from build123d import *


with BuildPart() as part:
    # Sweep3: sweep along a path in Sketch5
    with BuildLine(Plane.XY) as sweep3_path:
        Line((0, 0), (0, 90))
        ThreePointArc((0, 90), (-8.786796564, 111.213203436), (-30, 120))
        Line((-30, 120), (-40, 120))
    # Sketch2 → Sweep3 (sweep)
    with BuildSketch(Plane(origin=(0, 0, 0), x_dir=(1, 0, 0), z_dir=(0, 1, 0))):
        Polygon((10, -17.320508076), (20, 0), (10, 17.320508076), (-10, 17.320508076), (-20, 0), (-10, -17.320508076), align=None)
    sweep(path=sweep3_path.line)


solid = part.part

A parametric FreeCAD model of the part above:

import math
import FreeCAD as App
import Part
import Sketcher
Q = App.Units.Quantity


def add_polygon(sketch, points):
    """Adds a closed chain of lines whose ends are joined by coincident constraints."""
    first, n = sketch.GeometryCount, len(points)
    for a, b in zip(points, points[1:] + points[:1]):
        sketch.addGeometry(Part.LineSegment(App.Vector(*a, 0), App.Vector(*b, 0)), False)
    for i in range(n):
        sketch.addConstraint(Sketcher.Constraint("Coincident", first + i, 2, first + (i + 1) % n, 1))

doc = App.newDocument("Part")
body = doc.addObject("PartDesign::Body", "Body")

sketch1 = body.newObject("Sketcher::SketchObject", "Sketch")
sketch1.AttachmentSupport = (doc.getObject("XZ_Plane"), [""])
sketch1.MapMode = "FlatFace"
add_polygon(sketch1, [(10, 17), (20, 0), (10, -17), (-10, -17), (-20, 0), (-10, 17)])
sketch1.addConstraint([
    Sketcher.Constraint("Horizontal", 2),
    Sketcher.Constraint("Horizontal", 5),
    Sketcher.Constraint("Symmetric", 0, 2, 3, 2, -1, 1),
    Sketcher.Constraint("Symmetric", 1, 2, 4, 2, -1, 1),
    Sketcher.Constraint("PointOnObject", 0, 2, -1),
    Sketcher.Constraint("Parallel", 0, 3),
    Sketcher.Constraint("Vertical", 2, 2, 4, 2),
    Sketcher.Constraint("DistanceX", 2, 2, 2, 1, 20.0),
    Sketcher.Constraint("Angle", 0, Q("-60 deg")),
    Sketcher.Constraint("Distance", 0, 20.0),
])

sketch2 = body.newObject("Sketcher::SketchObject", "Sketch001")
sketch2.AttachmentSupport = (doc.getObject("XY_Plane"), [""])
sketch2.MapMode = "FlatFace"
sketch2.addGeometry([
    Part.LineSegment(App.Vector(0, 0, 0), App.Vector(0, 90, 0)),
    Part.ArcOfCircle(Part.Circle(App.Vector(-30, 90, 0), App.Vector(0, 0, 1), 30), math.radians(0), math.radians(90)),
    Part.LineSegment(App.Vector(-30, 120, 0), App.Vector(-40, 120, 0)),
], False)
sketch2.addConstraint([
    Sketcher.Constraint("Tangent", 0, 2, 1, 1),
    Sketcher.Constraint("Tangent", 1, 2, 2, 1),
    Sketcher.Constraint("Vertical", 0),
    Sketcher.Constraint("Horizontal", 2),
    Sketcher.Constraint("Coincident", 0, 1, -1, 1),
    Sketcher.Constraint("Radius", 1, 30.0),
    Sketcher.Constraint("DistanceX", 2, 2, 2, 1, 10.0),
    Sketcher.Constraint("DistanceY", 0, 1, 0, 2, 90.0),
])
doc.recompute()

additivepipe = body.newObject("PartDesign::AdditivePipe", "AdditivePipe")
additivepipe.Profile = sketch1
additivepipe.Spine = (sketch2, ["Edge1", "Edge2", "Edge3"])

doc.recompute()
